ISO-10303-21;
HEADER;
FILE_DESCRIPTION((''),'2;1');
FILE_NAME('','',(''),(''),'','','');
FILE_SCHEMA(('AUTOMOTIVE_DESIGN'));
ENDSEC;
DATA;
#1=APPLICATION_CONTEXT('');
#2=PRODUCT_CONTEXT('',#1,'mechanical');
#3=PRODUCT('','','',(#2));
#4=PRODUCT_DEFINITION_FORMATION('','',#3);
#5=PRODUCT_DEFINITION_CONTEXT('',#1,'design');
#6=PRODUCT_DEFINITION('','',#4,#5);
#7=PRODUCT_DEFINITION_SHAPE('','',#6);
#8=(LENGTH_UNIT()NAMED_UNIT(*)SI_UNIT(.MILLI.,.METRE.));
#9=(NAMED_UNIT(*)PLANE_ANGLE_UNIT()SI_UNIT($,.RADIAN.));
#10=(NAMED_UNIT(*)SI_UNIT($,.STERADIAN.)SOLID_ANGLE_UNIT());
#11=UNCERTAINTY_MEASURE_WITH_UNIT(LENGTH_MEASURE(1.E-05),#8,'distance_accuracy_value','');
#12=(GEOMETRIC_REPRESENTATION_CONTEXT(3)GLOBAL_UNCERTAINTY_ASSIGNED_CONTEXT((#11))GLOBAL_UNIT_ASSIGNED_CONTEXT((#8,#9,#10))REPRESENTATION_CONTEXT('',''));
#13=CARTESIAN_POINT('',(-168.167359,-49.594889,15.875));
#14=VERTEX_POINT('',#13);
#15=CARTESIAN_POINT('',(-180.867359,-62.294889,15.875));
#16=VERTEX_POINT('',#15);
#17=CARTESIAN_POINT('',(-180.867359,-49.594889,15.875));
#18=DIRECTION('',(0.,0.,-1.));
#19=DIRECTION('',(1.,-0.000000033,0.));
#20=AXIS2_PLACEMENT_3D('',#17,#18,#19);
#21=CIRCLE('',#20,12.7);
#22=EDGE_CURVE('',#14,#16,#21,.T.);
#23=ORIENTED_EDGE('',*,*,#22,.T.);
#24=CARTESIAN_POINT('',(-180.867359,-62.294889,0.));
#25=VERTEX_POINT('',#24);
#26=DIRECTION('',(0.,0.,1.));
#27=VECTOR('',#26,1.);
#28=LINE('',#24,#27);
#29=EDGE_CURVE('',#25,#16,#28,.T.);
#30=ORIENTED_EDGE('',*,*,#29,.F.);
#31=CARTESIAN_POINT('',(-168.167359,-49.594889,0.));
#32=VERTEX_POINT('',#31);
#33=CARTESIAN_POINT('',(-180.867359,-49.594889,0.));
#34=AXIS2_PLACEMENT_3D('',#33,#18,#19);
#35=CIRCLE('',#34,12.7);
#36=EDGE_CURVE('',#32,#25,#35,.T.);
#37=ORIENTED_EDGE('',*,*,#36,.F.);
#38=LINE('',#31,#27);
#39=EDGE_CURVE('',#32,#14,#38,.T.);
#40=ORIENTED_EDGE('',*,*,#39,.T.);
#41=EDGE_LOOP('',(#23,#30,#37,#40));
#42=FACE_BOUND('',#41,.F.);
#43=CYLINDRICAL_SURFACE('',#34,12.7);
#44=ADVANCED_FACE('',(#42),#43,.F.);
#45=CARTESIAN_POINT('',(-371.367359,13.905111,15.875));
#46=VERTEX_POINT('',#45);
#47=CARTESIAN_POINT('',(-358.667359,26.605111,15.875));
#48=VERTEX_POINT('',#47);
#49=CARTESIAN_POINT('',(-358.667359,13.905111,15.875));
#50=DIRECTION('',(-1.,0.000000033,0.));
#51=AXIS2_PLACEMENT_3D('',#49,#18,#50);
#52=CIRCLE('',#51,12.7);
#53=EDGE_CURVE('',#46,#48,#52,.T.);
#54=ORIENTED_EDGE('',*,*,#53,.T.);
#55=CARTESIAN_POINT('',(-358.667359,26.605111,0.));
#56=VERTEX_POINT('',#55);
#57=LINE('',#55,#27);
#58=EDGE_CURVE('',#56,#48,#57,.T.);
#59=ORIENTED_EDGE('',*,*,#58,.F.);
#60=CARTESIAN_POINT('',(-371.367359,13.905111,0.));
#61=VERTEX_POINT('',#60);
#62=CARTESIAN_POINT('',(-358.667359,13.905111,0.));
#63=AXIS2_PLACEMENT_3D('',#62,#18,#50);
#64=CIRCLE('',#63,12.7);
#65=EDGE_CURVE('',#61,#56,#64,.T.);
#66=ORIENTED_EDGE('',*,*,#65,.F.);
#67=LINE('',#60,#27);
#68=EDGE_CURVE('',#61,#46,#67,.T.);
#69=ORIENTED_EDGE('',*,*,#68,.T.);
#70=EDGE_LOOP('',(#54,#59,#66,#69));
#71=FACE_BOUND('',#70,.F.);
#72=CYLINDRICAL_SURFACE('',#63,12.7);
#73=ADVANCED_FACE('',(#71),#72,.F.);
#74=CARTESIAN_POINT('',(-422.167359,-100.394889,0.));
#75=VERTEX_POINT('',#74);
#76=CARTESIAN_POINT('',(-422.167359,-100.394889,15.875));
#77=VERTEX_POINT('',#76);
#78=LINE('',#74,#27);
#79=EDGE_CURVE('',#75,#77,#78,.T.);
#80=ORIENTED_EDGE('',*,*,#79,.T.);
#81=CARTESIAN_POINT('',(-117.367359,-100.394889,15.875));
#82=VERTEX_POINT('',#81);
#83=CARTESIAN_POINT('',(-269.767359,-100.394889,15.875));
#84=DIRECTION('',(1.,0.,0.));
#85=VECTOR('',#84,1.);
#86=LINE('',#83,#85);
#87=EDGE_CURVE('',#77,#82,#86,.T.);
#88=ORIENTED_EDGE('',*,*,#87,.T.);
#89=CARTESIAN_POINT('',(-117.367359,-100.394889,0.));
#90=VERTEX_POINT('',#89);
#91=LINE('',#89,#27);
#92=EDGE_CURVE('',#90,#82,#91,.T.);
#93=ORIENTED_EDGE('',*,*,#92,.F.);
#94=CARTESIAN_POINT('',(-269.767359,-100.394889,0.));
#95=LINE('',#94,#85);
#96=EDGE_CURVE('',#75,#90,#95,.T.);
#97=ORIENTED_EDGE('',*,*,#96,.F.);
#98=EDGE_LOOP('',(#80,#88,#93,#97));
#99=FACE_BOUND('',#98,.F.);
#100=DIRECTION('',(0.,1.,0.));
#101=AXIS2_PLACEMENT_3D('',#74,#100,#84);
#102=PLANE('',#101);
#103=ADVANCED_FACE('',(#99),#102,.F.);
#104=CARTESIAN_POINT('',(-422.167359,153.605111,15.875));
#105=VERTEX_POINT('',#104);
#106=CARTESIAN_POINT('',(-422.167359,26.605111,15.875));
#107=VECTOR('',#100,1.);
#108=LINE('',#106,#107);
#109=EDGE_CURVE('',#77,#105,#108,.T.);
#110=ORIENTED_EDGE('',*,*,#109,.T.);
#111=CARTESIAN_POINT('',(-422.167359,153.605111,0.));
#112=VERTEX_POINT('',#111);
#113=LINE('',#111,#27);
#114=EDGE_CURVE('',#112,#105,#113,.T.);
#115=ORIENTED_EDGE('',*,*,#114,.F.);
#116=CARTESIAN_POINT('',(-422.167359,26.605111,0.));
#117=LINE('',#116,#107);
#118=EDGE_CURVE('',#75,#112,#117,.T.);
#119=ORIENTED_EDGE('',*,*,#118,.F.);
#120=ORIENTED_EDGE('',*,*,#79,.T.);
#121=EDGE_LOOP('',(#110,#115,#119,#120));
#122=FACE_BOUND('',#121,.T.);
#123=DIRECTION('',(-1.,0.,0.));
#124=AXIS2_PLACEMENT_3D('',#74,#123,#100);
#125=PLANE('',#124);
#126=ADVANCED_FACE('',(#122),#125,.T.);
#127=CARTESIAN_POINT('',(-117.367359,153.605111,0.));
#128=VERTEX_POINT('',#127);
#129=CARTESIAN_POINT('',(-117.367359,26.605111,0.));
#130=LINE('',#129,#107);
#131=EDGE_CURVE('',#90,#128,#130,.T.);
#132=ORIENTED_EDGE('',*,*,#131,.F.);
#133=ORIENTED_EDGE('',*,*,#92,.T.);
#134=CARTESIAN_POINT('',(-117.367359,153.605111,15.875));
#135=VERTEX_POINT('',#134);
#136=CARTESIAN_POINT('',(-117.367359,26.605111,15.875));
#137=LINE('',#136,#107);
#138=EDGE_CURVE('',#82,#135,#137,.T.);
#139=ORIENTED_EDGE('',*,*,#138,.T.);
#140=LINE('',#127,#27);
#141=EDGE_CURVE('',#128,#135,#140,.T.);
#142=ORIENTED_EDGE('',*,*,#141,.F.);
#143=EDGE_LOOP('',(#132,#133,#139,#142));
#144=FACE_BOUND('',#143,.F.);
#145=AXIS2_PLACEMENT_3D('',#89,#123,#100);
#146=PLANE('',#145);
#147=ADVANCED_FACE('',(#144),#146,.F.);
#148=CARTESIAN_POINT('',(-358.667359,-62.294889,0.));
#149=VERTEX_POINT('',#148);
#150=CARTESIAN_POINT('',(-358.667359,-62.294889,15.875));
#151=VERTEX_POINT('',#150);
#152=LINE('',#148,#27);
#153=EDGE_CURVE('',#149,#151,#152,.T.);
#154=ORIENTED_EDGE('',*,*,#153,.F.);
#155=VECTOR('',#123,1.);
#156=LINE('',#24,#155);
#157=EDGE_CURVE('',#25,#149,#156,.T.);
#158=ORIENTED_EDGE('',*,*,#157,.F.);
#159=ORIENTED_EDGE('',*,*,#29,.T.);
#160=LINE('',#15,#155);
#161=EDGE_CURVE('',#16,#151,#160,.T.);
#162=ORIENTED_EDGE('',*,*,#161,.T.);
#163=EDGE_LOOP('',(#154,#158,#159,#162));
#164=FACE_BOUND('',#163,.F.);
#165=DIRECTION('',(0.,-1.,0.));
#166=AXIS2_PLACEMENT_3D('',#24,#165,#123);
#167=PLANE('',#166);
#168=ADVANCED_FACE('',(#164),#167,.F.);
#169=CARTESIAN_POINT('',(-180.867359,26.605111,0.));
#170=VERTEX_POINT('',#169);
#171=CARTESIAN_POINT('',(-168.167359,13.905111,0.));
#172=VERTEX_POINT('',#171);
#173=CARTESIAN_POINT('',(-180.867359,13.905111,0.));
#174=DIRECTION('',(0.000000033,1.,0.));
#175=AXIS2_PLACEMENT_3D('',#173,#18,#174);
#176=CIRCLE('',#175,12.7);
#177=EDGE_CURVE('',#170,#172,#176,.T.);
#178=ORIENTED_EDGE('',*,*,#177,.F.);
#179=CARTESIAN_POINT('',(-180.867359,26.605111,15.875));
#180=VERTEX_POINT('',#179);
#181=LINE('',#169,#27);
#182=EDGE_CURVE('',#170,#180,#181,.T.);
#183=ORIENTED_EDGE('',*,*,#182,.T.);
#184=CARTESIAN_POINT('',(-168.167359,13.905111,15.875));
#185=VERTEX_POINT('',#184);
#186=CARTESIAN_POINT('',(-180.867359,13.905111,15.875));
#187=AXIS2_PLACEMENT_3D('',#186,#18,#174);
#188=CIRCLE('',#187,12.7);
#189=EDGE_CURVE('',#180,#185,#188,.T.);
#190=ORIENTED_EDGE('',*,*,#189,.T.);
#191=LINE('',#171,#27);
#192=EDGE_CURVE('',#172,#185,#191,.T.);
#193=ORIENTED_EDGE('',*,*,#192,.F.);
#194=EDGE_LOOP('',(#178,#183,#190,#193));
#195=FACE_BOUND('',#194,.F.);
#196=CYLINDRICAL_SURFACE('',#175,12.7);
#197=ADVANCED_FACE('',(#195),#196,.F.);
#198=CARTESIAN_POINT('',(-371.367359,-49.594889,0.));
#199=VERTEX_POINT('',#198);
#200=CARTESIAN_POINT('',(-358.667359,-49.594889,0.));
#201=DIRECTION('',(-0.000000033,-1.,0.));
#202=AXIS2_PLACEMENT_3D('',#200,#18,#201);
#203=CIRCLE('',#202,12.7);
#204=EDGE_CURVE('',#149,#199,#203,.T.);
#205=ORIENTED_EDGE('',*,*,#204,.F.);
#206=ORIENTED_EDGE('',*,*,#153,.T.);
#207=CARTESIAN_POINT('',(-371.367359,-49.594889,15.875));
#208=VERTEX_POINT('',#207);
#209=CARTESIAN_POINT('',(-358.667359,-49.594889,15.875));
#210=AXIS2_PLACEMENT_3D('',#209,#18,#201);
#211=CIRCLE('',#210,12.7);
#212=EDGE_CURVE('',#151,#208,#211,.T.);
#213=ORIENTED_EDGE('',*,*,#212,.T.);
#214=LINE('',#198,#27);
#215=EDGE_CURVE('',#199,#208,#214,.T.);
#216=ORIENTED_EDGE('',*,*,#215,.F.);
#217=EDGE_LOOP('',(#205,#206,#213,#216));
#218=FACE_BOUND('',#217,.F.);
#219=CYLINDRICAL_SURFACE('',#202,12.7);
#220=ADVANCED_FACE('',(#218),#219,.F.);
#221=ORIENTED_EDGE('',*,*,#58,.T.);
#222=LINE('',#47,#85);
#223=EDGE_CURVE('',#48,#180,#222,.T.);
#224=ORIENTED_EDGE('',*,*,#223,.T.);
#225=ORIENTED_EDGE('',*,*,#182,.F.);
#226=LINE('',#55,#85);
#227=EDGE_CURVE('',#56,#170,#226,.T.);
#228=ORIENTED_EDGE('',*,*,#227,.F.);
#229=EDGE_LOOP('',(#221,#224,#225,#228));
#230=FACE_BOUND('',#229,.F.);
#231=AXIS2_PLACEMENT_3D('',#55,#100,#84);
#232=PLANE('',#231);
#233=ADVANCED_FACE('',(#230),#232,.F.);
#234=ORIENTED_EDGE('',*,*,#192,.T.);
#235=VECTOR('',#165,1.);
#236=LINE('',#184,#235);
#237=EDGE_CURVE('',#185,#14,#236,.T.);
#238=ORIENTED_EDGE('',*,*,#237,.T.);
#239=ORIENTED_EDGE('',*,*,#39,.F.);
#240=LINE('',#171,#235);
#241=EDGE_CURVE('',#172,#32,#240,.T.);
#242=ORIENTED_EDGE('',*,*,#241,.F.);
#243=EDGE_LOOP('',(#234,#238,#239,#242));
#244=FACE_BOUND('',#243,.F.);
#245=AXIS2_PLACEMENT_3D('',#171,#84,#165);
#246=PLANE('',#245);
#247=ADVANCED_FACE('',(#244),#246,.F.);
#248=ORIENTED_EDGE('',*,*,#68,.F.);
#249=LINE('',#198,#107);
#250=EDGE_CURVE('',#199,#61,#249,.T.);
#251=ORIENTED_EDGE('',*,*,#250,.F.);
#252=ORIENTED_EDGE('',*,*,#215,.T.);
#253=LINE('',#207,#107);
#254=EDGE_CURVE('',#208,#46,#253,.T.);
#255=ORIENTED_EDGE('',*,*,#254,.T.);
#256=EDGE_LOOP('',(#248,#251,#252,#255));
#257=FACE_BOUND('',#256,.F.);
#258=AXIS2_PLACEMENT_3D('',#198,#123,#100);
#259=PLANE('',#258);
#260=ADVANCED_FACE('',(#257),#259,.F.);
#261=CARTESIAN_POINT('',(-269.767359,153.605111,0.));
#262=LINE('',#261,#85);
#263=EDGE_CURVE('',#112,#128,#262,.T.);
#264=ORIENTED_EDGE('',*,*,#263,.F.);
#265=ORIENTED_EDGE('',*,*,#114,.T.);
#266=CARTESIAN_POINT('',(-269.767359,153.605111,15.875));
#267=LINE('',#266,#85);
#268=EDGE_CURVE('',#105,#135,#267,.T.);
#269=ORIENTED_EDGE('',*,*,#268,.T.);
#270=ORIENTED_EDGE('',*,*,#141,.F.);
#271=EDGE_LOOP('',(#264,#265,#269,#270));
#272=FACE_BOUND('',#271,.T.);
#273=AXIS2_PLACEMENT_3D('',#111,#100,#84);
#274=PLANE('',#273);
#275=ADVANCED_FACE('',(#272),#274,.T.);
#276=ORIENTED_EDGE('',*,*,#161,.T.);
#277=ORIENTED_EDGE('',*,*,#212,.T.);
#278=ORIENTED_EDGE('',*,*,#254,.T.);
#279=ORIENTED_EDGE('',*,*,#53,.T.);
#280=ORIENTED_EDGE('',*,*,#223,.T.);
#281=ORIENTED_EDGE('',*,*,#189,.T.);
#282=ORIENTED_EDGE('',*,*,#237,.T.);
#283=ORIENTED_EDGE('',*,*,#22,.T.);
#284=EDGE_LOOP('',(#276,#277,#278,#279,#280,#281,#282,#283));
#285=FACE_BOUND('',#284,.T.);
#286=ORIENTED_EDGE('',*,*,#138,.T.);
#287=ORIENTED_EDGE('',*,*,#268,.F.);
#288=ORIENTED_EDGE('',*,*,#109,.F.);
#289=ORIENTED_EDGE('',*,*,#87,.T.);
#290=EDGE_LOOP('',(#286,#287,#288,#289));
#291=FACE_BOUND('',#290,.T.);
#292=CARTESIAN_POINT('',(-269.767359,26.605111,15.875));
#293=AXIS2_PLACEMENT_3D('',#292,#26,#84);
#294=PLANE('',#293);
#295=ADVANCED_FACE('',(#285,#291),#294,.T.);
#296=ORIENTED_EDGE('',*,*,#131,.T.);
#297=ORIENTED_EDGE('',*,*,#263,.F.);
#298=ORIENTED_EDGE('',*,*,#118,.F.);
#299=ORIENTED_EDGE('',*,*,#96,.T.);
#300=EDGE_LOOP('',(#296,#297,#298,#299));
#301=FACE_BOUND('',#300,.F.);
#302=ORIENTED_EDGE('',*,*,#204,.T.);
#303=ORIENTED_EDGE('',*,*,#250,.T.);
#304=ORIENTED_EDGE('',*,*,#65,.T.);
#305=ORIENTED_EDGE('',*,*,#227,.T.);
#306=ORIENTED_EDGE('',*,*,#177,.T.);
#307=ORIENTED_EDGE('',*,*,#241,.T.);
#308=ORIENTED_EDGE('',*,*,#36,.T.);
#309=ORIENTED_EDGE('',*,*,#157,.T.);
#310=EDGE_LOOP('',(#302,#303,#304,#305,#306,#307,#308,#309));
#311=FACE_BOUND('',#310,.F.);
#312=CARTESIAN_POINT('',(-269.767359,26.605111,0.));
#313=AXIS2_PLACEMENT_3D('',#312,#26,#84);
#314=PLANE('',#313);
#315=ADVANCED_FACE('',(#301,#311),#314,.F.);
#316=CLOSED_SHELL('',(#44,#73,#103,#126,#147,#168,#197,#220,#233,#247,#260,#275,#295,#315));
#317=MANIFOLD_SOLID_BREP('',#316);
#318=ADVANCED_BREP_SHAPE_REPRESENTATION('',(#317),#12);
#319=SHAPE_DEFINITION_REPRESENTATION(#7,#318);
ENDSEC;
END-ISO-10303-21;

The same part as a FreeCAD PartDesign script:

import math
import FreeCAD as App
import Part
import Sketcher
from FreeCAD import Vector
Q = App.Units.Quantity


def add_polygon(sketch, points):
    """Adds a closed chain of lines whose ends are joined by coincident constraints."""
    first, n = sketch.GeometryCount, len(points)
    for a, b in zip(points, points[1:] + points[:1]):
        sketch.addGeometry(Part.LineSegment(App.Vector(*a, 0), App.Vector(*b, 0)), False)
    for i in range(n):
        sketch.addConstraint(Sketcher.Constraint("Coincident", first + i, 2, first + (i + 1) % n, 1))

doc = App.newDocument("Part")
body = doc.addObject("PartDesign::Body", "Body")

# Sketch on XY plane
sketch1 = body.newObject("Sketcher::SketchObject", "Sketch")
sketch1.AttachmentSupport = (doc.getObject("XY_Plane"), [""])
sketch1.MapMode = "FlatFace"
add_polygon(sketch1, [(-422.167359, 153.605111), (-422.167359, -100.394889), (-117.367359, -100.394889), (-117.367359, 153.605111)])  # lines 0-3
sketch1.addGeometry(Part.LineSegment(Vector(-371.367359, -49.594889, 0), Vector(-371.367359, 13.905111, 0)), False)  # 4
sketch1.addGeometry(Part.ArcOfCircle(Part.Circle(Vector(-358.667359, 13.905111, 0), Vector(0, 0, 1), 12.7), math.radians(90.000002), math.radians(179.999998)), False)  # 5
sketch1.addGeometry(Part.LineSegment(Vector(-358.667359, 26.605111, 0), Vector(-180.867359, 26.605111, 0)), False)  # 6
sketch1.addGeometry(Part.ArcOfCircle(Part.Circle(Vector(-180.867359, 13.905111, 0), Vector(0, 0, 1), 12.7), math.radians(0.000002), math.radians(89.999998)), False)  # 7
sketch1.addGeometry(Part.LineSegment(Vector(-168.167359, 13.905111, 0), Vector(-168.167359, -49.594889, 0)), False)  # 8
sketch1.addGeometry(Part.ArcOfCircle(Part.Circle(Vector(-180.867359, -49.594889, 0), Vector(0, 0, 1), 12.7), math.radians(-89.999998), math.radians(-0.000002)), False)  # 9
sketch1.addGeometry(Part.LineSegment(Vector(-180.867359, -62.294889, 0), Vector(-358.667359, -62.294889, 0)), False)  # 10
sketch1.addGeometry(Part.ArcOfCircle(Part.Circle(Vector(-358.667359, -49.594889, 0), Vector(0, 0, 1), 12.7), math.radians(-179.999998), math.radians(-90.000002)), False)  # 11
sketch1.addConstraint(Sketcher.Constraint("Tangent", 4, 2, 5, 2))
sketch1.addConstraint(Sketcher.Constraint("Tangent", 5, 1, 6, 1))
sketch1.addConstraint(Sketcher.Constraint("Tangent", 6, 2, 7, 2))
sketch1.addConstraint(Sketcher.Constraint("Tangent", 7, 1, 8, 1))
sketch1.addConstraint(Sketcher.Constraint("Tangent", 8, 2, 9, 2))
sketch1.addConstraint(Sketcher.Constraint("Tangent", 9, 1, 10, 1))
sketch1.addConstraint(Sketcher.Constraint("Tangent", 10, 2, 11, 2))
sketch1.addConstraint(Sketcher.Constraint("Tangent", 11, 1, 4, 1))
sketch1.addConstraint(Sketcher.Constraint("Vertical", 0))
sketch1.addConstraint(Sketcher.Constraint("Horizontal", 1))
sketch1.addConstraint(Sketcher.Constraint("Vertical", 2))
sketch1.addConstraint(Sketcher.Constraint("Horizontal", 3))
sketch1.addConstraint(Sketcher.Constraint("Vertical", 4))
sketch1.addConstraint(Sketcher.Constraint("Horizontal", 6))
sketch1.addConstraint(Sketcher.Constraint("Vertical", 8))
sketch1.addConstraint(Sketcher.Constraint("Horizontal", 10))
sketch1.addConstraint(Sketcher.Constraint("Equal", 5, 7))
sketch1.addConstraint(Sketcher.Constraint("Equal", 7, 9))
sketch1.addConstraint(Sketcher.Constraint("Equal", 9, 11))
sketch1.addConstraint(Sketcher.Constraint("Radius", 5, Q("0.5 in")))
sketch1.addConstraint(Sketcher.Constraint("DistanceX", 1, 1, 1, 2, Q("12 in")))
sketch1.addConstraint(Sketcher.Constraint("DistanceX", 6, 1, 6, 2, Q("7 in")))
sketch1.addConstraint(Sketcher.Constraint("DistanceY", 0, 2, 0, 1, Q("10 in")))
sketch1.addConstraint(Sketcher.Constraint("DistanceY", 4, 1, 4, 2, Q("2.5 in")))
sketch1.addConstraint(Sketcher.Constraint("DistanceY", 0, 2, 11, 3, Q("2 in")))
sketch1.addConstraint(Sketcher.Constraint("DistanceX", 0, 2, 4, 2, Q("2 in")))
sketch1.addConstraint(Sketcher.Constraint("DistanceX", 5, 3, -1, 1, 358.667359))
sketch1.addConstraint(Sketcher.Constraint("DistanceY", -1, 1, 5, 3, 13.905111))
pad1 = body.newObject("PartDesign::Pad", "Pad")
pad1.Profile = sketch1
pad1.Length = Q("0.625 in")

doc.recompute()
